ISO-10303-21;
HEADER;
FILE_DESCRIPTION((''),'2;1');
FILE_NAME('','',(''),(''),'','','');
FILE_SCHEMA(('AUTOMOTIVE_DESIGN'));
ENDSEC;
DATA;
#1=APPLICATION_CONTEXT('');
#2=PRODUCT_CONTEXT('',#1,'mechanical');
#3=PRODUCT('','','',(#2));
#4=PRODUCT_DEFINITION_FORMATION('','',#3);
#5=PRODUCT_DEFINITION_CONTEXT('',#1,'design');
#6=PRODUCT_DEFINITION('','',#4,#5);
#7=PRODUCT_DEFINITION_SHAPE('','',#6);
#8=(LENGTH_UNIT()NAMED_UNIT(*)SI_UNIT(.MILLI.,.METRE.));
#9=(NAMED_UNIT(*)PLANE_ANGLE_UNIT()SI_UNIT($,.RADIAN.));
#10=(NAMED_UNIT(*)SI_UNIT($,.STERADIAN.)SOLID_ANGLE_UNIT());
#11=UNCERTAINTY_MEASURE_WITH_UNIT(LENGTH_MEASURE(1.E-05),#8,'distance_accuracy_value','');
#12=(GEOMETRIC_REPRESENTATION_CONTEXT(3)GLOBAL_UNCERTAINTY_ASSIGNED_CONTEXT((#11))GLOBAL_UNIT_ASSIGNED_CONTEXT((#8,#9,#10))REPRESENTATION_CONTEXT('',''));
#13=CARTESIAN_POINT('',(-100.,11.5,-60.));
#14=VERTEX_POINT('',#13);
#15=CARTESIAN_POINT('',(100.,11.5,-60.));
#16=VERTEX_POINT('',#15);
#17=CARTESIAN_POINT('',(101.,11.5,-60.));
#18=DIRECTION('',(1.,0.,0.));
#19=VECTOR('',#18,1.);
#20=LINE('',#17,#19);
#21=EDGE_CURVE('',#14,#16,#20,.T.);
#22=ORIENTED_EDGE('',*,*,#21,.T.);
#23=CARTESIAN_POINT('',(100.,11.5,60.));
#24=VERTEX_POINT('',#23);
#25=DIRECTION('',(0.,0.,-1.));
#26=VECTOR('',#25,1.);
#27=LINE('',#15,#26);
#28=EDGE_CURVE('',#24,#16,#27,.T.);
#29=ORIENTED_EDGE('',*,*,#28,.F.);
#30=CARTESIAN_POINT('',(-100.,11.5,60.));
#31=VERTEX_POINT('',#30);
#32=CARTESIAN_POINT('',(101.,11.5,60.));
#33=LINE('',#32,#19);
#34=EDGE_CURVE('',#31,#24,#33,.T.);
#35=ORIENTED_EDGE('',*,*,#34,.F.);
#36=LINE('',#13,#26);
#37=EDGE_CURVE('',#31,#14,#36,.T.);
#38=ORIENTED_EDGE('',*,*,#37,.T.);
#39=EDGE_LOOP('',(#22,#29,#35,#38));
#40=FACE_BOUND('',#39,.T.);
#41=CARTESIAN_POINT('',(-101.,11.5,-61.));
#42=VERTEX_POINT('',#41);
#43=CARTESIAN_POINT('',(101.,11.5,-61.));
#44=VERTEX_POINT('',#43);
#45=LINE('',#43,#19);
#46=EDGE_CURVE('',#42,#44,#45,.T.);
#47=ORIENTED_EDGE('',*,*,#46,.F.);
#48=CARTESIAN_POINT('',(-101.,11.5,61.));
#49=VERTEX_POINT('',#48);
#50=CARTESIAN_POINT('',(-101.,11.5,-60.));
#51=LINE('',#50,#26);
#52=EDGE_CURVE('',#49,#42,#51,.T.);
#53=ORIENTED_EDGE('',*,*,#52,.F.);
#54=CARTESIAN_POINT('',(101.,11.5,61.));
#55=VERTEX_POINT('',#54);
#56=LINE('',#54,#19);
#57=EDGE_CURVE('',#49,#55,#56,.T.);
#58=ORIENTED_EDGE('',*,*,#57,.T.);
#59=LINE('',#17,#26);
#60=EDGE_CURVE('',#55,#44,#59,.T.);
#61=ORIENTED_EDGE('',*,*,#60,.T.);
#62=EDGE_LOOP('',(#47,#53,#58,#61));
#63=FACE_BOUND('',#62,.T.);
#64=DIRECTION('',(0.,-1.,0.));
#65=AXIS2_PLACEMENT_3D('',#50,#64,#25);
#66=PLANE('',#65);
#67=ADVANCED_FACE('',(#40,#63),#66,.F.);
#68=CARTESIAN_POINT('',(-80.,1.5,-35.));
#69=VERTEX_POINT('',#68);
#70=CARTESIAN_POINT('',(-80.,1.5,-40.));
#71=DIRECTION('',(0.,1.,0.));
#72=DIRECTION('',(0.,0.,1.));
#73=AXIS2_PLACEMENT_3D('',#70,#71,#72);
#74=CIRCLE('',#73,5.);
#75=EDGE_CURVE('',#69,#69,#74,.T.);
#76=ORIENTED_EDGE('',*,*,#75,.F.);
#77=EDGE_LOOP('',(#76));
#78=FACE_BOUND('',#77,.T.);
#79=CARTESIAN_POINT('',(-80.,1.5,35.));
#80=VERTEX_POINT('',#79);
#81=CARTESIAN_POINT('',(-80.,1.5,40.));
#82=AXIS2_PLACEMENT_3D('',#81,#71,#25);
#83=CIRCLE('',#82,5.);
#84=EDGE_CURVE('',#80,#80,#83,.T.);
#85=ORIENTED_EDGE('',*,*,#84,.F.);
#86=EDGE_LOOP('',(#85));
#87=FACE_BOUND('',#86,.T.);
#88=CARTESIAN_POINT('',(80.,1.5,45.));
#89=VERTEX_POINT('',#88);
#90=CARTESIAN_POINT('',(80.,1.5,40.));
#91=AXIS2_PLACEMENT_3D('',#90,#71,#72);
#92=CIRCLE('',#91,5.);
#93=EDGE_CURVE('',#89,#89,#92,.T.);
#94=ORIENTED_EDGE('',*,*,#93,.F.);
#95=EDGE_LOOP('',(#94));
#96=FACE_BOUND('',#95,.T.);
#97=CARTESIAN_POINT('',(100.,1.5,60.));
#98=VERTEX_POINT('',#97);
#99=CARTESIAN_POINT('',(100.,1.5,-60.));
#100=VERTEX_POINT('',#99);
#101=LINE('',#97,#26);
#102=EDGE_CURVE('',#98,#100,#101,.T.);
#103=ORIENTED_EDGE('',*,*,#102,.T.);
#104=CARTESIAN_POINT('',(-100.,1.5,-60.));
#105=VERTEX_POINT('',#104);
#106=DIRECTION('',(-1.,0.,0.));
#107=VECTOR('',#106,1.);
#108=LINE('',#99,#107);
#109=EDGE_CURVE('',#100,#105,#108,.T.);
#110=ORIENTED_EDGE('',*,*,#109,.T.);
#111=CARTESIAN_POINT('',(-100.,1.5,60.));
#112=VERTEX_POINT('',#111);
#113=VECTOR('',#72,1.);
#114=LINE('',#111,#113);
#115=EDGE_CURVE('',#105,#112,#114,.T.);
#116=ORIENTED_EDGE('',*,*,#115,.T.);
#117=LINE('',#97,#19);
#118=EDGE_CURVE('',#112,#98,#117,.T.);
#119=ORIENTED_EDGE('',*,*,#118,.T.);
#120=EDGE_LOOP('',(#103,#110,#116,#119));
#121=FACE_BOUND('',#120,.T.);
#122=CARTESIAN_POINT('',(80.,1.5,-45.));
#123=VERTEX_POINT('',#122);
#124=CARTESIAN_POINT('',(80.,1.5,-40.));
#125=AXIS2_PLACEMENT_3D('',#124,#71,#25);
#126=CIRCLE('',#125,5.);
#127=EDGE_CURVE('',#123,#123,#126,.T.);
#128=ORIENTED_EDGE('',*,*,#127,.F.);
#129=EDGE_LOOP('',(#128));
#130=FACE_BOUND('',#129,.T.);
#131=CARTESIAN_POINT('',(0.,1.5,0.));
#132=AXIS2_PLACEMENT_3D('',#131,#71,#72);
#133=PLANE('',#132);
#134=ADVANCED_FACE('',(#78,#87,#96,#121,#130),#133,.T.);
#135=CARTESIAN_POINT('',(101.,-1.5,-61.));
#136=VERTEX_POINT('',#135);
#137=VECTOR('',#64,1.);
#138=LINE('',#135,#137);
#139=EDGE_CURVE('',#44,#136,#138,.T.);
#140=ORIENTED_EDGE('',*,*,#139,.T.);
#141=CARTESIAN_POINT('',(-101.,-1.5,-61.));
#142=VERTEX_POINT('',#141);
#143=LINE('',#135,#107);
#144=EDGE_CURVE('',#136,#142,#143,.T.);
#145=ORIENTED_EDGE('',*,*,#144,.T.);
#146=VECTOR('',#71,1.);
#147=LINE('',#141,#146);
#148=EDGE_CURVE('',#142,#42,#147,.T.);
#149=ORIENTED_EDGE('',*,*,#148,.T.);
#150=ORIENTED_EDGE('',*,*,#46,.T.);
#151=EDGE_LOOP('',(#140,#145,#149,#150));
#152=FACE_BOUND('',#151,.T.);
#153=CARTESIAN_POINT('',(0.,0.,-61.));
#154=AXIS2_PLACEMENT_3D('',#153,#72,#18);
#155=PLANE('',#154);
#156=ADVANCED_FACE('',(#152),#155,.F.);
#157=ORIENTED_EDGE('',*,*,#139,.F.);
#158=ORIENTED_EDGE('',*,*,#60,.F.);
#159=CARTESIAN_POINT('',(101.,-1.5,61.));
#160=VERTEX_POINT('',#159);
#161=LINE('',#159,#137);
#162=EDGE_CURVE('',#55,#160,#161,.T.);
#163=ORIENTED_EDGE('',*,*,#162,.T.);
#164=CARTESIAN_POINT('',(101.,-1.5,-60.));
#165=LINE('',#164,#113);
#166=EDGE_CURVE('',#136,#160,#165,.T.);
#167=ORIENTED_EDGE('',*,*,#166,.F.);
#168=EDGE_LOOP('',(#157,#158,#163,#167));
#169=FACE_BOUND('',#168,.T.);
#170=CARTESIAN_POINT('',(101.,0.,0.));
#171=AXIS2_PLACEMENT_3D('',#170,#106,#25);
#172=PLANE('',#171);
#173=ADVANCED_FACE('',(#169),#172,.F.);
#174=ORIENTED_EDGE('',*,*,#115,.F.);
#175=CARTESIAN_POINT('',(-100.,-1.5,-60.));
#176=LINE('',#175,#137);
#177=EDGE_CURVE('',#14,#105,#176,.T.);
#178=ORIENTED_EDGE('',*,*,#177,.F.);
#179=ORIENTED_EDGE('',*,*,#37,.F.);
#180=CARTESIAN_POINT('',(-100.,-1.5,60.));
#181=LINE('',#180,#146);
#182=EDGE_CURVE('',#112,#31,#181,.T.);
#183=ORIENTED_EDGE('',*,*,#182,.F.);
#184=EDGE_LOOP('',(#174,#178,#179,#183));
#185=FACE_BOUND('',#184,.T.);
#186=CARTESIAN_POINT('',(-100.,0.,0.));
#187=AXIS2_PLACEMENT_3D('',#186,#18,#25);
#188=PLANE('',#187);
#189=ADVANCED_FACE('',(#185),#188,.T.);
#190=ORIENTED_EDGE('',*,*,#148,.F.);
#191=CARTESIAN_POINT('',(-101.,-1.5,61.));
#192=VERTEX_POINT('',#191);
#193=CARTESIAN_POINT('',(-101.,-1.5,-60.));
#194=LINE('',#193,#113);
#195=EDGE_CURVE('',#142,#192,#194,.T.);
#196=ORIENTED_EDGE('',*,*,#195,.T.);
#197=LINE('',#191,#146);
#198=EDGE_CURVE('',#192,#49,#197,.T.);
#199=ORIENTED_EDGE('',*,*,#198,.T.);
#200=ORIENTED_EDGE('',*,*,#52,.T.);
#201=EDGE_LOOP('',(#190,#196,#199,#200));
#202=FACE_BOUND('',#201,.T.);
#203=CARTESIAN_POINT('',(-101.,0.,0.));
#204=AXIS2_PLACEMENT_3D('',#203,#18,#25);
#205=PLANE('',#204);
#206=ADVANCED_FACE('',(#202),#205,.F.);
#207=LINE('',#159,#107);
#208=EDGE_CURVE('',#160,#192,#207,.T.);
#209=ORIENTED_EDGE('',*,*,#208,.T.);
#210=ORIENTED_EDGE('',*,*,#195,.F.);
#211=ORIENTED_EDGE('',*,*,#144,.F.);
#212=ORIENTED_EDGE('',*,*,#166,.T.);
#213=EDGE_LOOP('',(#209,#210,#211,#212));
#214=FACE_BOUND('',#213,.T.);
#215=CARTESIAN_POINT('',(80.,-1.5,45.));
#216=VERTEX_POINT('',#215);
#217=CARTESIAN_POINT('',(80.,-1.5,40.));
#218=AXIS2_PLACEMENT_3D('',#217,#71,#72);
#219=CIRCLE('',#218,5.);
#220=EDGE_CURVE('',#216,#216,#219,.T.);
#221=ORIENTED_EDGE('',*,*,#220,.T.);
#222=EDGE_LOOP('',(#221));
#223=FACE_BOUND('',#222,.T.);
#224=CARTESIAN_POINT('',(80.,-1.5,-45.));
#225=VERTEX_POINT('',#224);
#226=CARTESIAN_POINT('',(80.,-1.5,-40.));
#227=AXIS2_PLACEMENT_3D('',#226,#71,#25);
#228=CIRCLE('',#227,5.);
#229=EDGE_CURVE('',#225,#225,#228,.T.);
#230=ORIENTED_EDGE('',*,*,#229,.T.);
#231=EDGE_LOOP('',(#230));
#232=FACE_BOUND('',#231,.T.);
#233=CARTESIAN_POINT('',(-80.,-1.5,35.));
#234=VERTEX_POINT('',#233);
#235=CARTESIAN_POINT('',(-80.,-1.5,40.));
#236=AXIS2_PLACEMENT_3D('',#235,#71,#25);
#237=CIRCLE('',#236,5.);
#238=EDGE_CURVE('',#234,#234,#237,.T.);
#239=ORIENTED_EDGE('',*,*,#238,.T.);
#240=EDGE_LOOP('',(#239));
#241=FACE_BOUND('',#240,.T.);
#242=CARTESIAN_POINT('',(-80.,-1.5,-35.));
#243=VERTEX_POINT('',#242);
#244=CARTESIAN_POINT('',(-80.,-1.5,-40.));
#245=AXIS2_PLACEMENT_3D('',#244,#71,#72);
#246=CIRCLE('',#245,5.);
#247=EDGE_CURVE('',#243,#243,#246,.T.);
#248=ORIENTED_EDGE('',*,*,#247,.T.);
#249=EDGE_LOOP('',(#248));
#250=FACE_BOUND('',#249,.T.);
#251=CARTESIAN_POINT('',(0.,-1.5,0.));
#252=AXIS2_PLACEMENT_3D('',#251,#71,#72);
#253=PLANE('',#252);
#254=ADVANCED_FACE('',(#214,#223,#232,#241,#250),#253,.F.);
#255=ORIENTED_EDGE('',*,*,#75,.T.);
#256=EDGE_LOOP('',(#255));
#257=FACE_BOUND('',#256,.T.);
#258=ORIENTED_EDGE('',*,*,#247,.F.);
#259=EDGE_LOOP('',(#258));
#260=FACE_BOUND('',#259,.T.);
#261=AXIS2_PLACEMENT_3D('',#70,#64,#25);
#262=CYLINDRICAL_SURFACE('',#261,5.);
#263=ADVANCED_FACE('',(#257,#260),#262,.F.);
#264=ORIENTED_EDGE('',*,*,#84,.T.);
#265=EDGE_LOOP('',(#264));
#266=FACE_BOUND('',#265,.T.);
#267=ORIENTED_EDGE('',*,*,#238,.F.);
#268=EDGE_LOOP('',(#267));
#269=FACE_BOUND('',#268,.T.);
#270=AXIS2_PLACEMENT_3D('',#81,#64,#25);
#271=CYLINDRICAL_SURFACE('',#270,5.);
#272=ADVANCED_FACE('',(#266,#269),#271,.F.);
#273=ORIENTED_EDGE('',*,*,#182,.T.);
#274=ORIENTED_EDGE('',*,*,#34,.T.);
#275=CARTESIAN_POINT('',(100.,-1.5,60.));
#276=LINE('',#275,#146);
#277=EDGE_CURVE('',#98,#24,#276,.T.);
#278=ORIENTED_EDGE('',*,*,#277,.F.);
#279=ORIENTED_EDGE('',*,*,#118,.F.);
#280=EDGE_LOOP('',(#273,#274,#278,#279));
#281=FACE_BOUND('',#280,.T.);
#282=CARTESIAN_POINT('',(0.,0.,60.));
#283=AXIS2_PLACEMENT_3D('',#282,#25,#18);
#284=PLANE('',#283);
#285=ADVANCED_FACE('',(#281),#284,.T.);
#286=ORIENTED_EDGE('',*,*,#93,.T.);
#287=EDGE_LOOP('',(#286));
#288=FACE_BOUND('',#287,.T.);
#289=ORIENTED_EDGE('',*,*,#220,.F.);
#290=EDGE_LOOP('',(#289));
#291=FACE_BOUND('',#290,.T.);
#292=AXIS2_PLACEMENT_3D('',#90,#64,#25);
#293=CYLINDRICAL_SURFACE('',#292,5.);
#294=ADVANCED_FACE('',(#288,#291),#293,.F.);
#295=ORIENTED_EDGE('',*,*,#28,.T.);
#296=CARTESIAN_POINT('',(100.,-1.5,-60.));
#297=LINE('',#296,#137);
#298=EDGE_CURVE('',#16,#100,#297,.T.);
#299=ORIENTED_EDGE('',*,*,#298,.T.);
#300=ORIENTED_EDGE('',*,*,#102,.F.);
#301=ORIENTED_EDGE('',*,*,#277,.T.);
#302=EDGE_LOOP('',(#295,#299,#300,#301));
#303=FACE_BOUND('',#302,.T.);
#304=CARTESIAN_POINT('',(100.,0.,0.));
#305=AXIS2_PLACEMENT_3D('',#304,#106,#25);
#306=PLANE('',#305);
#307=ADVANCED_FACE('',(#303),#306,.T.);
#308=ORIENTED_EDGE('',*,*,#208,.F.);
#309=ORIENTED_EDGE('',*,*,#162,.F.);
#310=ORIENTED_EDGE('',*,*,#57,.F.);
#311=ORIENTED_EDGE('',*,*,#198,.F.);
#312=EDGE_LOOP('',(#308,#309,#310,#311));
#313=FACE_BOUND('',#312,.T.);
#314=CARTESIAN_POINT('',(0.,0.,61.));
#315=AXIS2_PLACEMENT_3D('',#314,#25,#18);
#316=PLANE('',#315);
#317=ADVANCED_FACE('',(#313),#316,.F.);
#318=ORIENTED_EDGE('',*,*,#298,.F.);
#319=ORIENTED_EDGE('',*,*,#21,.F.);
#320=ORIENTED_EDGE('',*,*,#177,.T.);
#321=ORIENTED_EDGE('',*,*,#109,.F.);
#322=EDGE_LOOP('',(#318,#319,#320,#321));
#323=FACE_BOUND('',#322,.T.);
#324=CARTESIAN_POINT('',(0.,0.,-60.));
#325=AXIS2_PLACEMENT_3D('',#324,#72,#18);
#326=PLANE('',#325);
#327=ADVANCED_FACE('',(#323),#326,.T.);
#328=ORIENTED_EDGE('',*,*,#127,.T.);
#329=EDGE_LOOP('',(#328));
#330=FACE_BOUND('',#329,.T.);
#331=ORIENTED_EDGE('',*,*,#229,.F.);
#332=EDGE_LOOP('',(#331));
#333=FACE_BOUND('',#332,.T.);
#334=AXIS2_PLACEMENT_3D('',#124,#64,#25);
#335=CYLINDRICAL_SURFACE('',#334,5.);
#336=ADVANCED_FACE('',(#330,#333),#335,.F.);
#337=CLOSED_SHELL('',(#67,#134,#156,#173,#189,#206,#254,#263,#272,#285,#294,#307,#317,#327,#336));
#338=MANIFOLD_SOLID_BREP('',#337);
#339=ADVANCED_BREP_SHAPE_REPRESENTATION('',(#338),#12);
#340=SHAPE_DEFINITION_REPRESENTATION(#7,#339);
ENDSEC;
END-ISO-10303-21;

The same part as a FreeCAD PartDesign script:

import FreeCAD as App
import Part
import Sketcher
from FreeCAD import Vector


def add_polygon(sketch, points):
    """Adds a closed chain of lines whose ends are joined by coincident constraints."""
    first, n = sketch.GeometryCount, len(points)
    for a, b in zip(points, points[1:] + points[:1]):
        sketch.addGeometry(Part.LineSegment(App.Vector(*a, 0), App.Vector(*b, 0)), False)
    for i in range(n):
        sketch.addConstraint(Sketcher.Constraint("Coincident", first + i, 2, first + (i + 1) % n, 1))

doc = App.newDocument("Part")
body = doc.addObject("PartDesign::Body", "Body")

# Sketch on XZ plane
sketch1 = doc.addObject("Sketcher::SketchObject", "Sketch")
body.addObject(sketch1)
sketch1.AttachmentSupport = (doc.XZ_Plane, [""])
sketch1.MapMode = "FlatFace"
add_polygon(sketch1, [(-100, -60), (-100, 60), (100, 60), (100, -60)])  # lines 0-3
sketch1.addGeometry(Part.Circle(Vector(-80, 40, 0), Vector(0, 0, 1), 5), False)  # 4
sketch1.addGeometry(Part.Circle(Vector(80, 40, 0), Vector(0, 0, 1), 5), False)  # 5
sketch1.addGeometry(Part.Circle(Vector(-80, -40, 0), Vector(0, 0, 1), 5), False)  # 6
sketch1.addGeometry(Part.Circle(Vector(80, -40, 0), Vector(0, 0, 1), 5), False)  # 7
sketch1.addConstraint(Sketcher.Constraint("Vertical", 0))
sketch1.addConstraint(Sketcher.Constraint("Horizontal", 1))
sketch1.addConstraint(Sketcher.Constraint("Vertical", 2))
sketch1.addConstraint(Sketcher.Constraint("Horizontal", 3))
sketch1.addConstraint(Sketcher.Constraint("Equal", 4, 5))
sketch1.addConstraint(Sketcher.Constraint("Equal", 5, 6))
sketch1.addConstraint(Sketcher.Constraint("Equal", 6, 7))
sketch1.addConstraint(Sketcher.Constraint("Symmetric", 5, 3, 6, 3, -1, 1))
sketch1.addConstraint(Sketcher.Constraint("Symmetric", 4, 3, 7, 3, -1, 1))
sketch1.addConstraint(Sketcher.Constraint("Symmetric", 0, 2, 2, 2, -1, 1))
sketch1.addConstraint(Sketcher.Constraint("Symmetric", 4, 3, 5, 3, -2))
sketch1.addConstraint(Sketcher.Constraint("Diameter", 4, 10.0))
sketch1.addConstraint(Sketcher.Constraint("DistanceX", 1, 1, 1, 2, 200.0))
sketch1.addConstraint(Sketcher.Constraint("DistanceY", 0, 1, 0, 2, 120.0))
sketch1.addConstraint(Sketcher.Constraint("DistanceX", 4, 3, -1, 1, 80.0))
sketch1.addConstraint(Sketcher.Constraint("DistanceY", -1, 1, 4, 3, 40.0))
pad1 = doc.addObject("PartDesign::Pad", "Pad")
body.addObject(pad1)
pad1.Profile = sketch1
pad1.Length = 3
pad1.Midplane = True

# Sketch on YZ plane
sketch2 = doc.addObject("Sketcher::SketchObject", "Sketch001")
body.addObject(sketch2)
sketch2.AttachmentSupport = (doc.YZ_Plane, [""])
sketch2.MapMode = "FlatFace"
sketch2.AttachmentOffset = App.Placement(Vector(0, 0, -100), App.Rotation())
add_polygon(sketch2, [(11.5, -60), (-1.5, -60), (-1.5, 60), (11.5, 60)])  # lines 0-3
sketch2.addConstraint(Sketcher.Constraint("Horizontal", 0))
sketch2.addConstraint(Sketcher.Constraint("Vertical", 1))
sketch2.addConstraint(Sketcher.Constraint("Horizontal", 2))
sketch2.addConstraint(Sketcher.Constraint("Vertical", 3))
sketch2.addConstraint(Sketcher.Constraint("DistanceX", 0, 2, 0, 1, 13.0))
sketch2.addConstraint(Sketcher.Constraint("DistanceY", 1, 1, 1, 2, 120.0))
sketch2.addConstraint(Sketcher.Constraint("DistanceY", 0, 2, -1, 1, 60.0))
sketch2.addConstraint(Sketcher.Constraint("DistanceX", 0, 2, -1, 1, 1.5))
pad2 = doc.addObject("PartDesign::Pad", "Pad001")
body.addObject(pad2)
pad2.Profile = sketch2
pad2.Length = 1
pad2.Reversed = True
doc.recompute()

mirrored = doc.addObject("PartDesign::Mirrored", "Mirrored")
body.addObject(mirrored)
mirrored.Originals = [pad2]
mirrored.MirrorPlane = (doc.YZ_Plane, [""])
body.Tip = mirrored

# Sketch on XY plane
sketch3 = doc.addObject("Sketcher::SketchObject", "Sketch002")
body.addObject(sketch3)
sketch3.AttachmentSupport = (doc.XY_Plane, [""])
sketch3.MapMode = "FlatFace"
sketch3.AttachmentOffset = App.Placement(Vector(0, 0, -60), App.Rotation())
add_polygon(sketch3, [(101, 11.5), (101, -1.5), (-101, -1.5), (-101, 11.5)])  # lines 0-3
sketch3.addConstraint(Sketcher.Constraint("Vertical", 0))
sketch3.addConstraint(Sketcher.Constraint("Horizontal", 1))
sketch3.addConstraint(Sketcher.Constraint("Vertical", 2))
sketch3.addConstraint(Sketcher.Constraint("Horizontal", 3))
sketch3.addConstraint(Sketcher.Constraint("DistanceX", 1, 2, 1, 1, 202.0))
sketch3.addConstraint(Sketcher.Constraint("DistanceY", 0, 2, 0, 1, 13.0))
sketch3.addConstraint(Sketcher.Constraint("DistanceX", -1, 1, 0, 2, 101.0))
sketch3.addConstraint(Sketcher.Constraint("DistanceY", 0, 2, -1, 1, 1.5))
pad3 = doc.addObject("PartDesign::Pad", "Pad002")
body.addObject(pad3)
pad3.Profile = sketch3
pad3.Length = 1
pad3.Reversed = True
doc.recompute()

mirrored2 = doc.addObject("PartDesign::Mirrored", "Mirrored001")
body.addObject(mirrored2)
mirrored2.Originals = [pad3]
mirrored2.MirrorPlane = (doc.XY_Plane, [""])
body.Tip = mirrored2

doc.recompute()
